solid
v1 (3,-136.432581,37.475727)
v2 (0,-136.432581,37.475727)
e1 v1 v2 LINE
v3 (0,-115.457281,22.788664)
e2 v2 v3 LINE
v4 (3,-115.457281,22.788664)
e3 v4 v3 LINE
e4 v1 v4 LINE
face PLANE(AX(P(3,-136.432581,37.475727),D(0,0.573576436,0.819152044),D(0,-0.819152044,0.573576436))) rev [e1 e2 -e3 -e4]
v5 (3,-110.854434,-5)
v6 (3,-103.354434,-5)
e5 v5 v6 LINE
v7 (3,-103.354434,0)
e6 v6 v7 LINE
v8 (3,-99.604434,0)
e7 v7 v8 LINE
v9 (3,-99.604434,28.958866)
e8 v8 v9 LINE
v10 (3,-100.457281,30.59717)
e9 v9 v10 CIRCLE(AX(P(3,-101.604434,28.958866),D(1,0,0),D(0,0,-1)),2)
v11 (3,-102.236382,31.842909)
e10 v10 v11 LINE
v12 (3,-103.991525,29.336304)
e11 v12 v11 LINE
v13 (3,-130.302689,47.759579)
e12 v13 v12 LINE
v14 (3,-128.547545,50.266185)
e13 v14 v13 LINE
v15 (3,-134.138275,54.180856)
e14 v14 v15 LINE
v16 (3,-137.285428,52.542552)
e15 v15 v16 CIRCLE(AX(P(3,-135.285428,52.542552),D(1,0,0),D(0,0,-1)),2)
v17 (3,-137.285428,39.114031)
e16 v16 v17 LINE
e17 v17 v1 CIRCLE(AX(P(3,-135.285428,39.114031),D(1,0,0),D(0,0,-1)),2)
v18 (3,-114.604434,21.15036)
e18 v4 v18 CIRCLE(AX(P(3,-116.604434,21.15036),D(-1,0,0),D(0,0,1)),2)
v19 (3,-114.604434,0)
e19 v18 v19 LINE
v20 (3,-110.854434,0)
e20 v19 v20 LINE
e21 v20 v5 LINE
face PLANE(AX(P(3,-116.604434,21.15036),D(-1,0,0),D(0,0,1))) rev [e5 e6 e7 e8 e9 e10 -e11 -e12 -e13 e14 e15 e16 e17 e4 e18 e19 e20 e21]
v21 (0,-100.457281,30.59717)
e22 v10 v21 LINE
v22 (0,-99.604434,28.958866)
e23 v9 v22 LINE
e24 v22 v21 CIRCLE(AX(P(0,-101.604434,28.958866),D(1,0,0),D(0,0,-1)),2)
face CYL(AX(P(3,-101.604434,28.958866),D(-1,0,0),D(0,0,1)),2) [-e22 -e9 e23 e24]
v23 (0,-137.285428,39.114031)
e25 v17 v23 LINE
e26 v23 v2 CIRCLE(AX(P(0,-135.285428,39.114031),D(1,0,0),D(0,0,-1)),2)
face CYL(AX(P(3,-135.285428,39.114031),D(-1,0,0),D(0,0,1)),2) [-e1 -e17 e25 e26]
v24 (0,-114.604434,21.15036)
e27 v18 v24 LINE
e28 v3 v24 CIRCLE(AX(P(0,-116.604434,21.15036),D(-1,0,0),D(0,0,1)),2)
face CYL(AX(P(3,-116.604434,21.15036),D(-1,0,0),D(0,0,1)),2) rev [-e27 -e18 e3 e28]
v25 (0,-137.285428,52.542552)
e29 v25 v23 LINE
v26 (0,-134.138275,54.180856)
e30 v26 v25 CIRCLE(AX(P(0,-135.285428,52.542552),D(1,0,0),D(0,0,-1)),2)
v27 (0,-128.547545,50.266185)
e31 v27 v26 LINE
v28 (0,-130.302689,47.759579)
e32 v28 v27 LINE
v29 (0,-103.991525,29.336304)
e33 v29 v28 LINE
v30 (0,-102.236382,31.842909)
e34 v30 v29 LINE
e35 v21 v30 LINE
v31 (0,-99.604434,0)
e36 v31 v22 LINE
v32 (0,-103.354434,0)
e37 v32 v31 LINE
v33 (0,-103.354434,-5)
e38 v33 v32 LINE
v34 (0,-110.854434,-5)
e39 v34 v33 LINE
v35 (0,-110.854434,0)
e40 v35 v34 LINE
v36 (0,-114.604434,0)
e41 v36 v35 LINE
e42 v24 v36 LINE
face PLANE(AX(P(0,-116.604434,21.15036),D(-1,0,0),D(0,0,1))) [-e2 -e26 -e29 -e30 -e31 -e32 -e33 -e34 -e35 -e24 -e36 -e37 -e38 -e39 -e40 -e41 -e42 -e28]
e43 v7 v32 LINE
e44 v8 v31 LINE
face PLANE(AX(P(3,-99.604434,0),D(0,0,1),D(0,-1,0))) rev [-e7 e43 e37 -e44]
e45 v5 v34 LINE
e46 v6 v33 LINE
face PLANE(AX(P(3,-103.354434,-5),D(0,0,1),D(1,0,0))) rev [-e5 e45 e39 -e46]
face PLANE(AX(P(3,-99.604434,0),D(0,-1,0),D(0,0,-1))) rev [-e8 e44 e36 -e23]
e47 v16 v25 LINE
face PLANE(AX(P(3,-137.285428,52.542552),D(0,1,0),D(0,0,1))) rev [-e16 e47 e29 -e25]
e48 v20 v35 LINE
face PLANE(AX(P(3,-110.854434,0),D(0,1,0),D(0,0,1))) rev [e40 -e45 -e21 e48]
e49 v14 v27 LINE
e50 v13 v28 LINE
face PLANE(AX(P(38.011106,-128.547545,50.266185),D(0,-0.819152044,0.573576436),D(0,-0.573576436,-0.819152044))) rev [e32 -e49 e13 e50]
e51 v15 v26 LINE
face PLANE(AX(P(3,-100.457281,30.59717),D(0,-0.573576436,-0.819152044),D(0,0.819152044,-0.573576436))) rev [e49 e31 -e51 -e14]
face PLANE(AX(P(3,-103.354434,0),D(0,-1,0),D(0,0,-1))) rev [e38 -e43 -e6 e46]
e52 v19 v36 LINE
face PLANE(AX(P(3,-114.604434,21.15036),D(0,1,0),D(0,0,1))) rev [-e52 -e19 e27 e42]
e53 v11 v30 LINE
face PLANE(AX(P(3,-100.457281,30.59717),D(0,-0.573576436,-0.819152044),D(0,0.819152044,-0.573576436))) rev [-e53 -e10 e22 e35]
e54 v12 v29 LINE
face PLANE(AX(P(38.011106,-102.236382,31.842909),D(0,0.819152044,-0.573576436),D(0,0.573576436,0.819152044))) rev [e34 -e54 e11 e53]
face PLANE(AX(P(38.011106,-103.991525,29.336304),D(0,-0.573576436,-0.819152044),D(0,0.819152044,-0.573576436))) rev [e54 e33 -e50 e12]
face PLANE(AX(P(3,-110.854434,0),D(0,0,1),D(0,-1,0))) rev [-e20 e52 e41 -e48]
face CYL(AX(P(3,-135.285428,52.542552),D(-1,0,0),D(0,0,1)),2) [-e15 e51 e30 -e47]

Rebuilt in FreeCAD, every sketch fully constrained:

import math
import FreeCAD as App
import Part
import Sketcher
Q = App.Units.Quantity


def add_polygon(sketch, points):
    """Adds a closed chain of lines whose ends are joined by coincident constraints."""
    first, n = sketch.GeometryCount, len(points)
    for a, b in zip(points, points[1:] + points[:1]):
        sketch.addGeometry(Part.LineSegment(App.Vector(*a, 0), App.Vector(*b, 0)), False)
    for i in range(n):
        sketch.addConstraint(Sketcher.Constraint("Coincident", first + i, 2, first + (i + 1) % n, 1))

doc = App.newDocument("Part")
body = doc.addObject("PartDesign::Body", "Body")

# Sketch on YZ plane
sketch1 = body.newObject("Sketcher::SketchObject", "Sketch")
sketch1.AttachmentSupport = (doc.getObject("YZ_Plane"), [""])
sketch1.MapMode = "FlatFace"
sketch1.addGeometry([
    Part.LineSegment(App.Vector(-99.6, 0, 0), App.Vector(-99.6, 29, 0)),  # 0
    Part.ArcOfCircle(Part.Circle(App.Vector(-101.6, 29, 0), App.Vector(0, 0, 1), 2), math.radians(0), math.radians(55)),  # 1
    Part.LineSegment(App.Vector(-100.5, 30.6, 0), App.Vector(-134.1, 54.2, 0)),  # 2
    Part.ArcOfCircle(Part.Circle(App.Vector(-135.3, 52.5, 0), App.Vector(0, 0, 1), 2), math.radians(55), math.radians(180)),  # 3
    Part.LineSegment(App.Vector(-137.3, 52.5, 0), App.Vector(-137.3, 39.1, 0)),  # 4
    Part.ArcOfCircle(Part.Circle(App.Vector(-135.3, 39.1, 0), App.Vector(0, 0, 1), 2), math.radians(-180), math.radians(-125)),  # 5
    Part.LineSegment(App.Vector(-136.4, 37.5, 0), App.Vector(-115.5, 22.8, 0)),  # 6
    Part.ArcOfCircle(Part.Circle(App.Vector(-116.6, 21.2, 0), App.Vector(0, 0, 1), 2), math.radians(0), math.radians(55)),  # 7
    Part.LineSegment(App.Vector(-114.6, 21.2, 0), App.Vector(-114.6, 0, 0)),  # 8
    Part.LineSegment(App.Vector(-114.6, 0, 0), App.Vector(-110.9, 0, 0)),  # 9
    Part.LineSegment(App.Vector(-110.9, 0, 0), App.Vector(-110.9, -5, 0)),  # 10
    Part.LineSegment(App.Vector(-110.9, -5, 0), App.Vector(-103.4, -5, 0)),  # 11
    Part.LineSegment(App.Vector(-103.4, -5, 0), App.Vector(-103.4, 0, 0)),  # 12
    Part.LineSegment(App.Vector(-103.4, 0, 0), App.Vector(-99.6, 0, 0)),  # 13
], False)
sketch1.addConstraint([
    Sketcher.Constraint("Tangent", 0, 2, 1, 1),
    Sketcher.Constraint("Tangent", 1, 2, 2, 1),
    Sketcher.Constraint("Tangent", 2, 2, 3, 1),
    Sketcher.Constraint("Tangent", 3, 2, 4, 1),
    Sketcher.Constraint("Tangent", 4, 2, 5, 1),
    Sketcher.Constraint("Tangent", 5, 2, 6, 1),
    Sketcher.Constraint("Tangent", 6, 2, 7, 2),
    Sketcher.Constraint("Tangent", 7, 1, 8, 1),
    Sketcher.Constraint("Coincident", 8, 2, 9, 1),
    Sketcher.Constraint("Coincident", 9, 2, 10, 1),
    Sketcher.Constraint("Coincident", 10, 2, 11, 1),
    Sketcher.Constraint("Coincident", 11, 2, 12, 1),
    Sketcher.Constraint("Coincident", 12, 2, 13, 1),
    Sketcher.Constraint("Coincident", 13, 2, 0, 1),
    Sketcher.Constraint("Vertical", 0),
    Sketcher.Constraint("Vertical", 4),
    Sketcher.Constraint("Vertical", 8),
    Sketcher.Constraint("Horizontal", 9),
    Sketcher.Constraint("Vertical", 10),
    Sketcher.Constraint("Horizontal", 11),
    Sketcher.Constraint("Vertical", 12),
    Sketcher.Constraint("Horizontal", 13),
    Sketcher.Constraint("Equal", 1, 3),
    Sketcher.Constraint("Equal", 3, 5),
    Sketcher.Constraint("Equal", 5, 7),
    Sketcher.Constraint("PointOnObject", 8, 2, -1),
    Sketcher.Constraint("PointOnObject", 12, 2, -1),
    Sketcher.Constraint("Parallel", 2, 6),
    Sketcher.Constraint("Equal", 9, 13),
    Sketcher.Constraint("Radius", 1, Q("2 mm")),
    Sketcher.Constraint("DistanceY", 10, 2, 10, 1, Q("5 mm")),
    Sketcher.Constraint("Angle", 2, Q("145 deg")),
    Sketcher.Constraint("DistanceX", 11, 1, 11, 2, Q("7.5 mm")),
    Sketcher.Constraint("DistanceX", 7, 3, 1, 3, Q("15 mm")),
    Sketcher.Constraint("Distance", 2, Q("41.116902 mm")),
    Sketcher.Constraint("DistanceY", 4, 2, 4, 1, Q("13.42852 mm")),
    Sketcher.Constraint("DistanceY", 8, 2, 8, 1, Q("21.15036 mm")),
    Sketcher.Constraint("DistanceX", 3, 3, -1, 1, Q("135.285428 mm")),
])
pad1 = body.newObject("PartDesign::Pad", "Pad")
pad1.Profile = sketch1
pad1.Length = 3

# Sketch on YZ plane
sketch2 = body.newObject("Sketcher::SketchObject", "Sketch001")
sketch2.AttachmentSupport = (doc.getObject("YZ_Plane"), [""])
sketch2.MapMode = "FlatFace"
add_polygon(sketch2, [(-130.3, 47.8), (-128.5, 50.3), (-102.2, 31.8), (-104, 29.3)])  # lines 0-3
sketch2.addConstraint([
    Sketcher.Constraint("Perpendicular", 0, 1),
    Sketcher.Constraint("Perpendicular", 1, 2),
    Sketcher.Constraint("Perpendicular", 2, 3),
    Sketcher.Constraint("Angle", 0, Q("55 deg")),
    Sketcher.Constraint("Distance", 0, Q("3.06 mm")),
    Sketcher.Constraint("Distance", 1, Q("32.12 mm")),
    Sketcher.Constraint("DistanceX", 1, 2, -1, 1, Q("102.236382 mm")),
    Sketcher.Constraint("DistanceY", -1, 1, 1, 2, Q("31.842909 mm")),
])
pocket1 = body.newObject("PartDesign::Pocket", "Pocket")
pocket1.Profile = sketch2
pocket1.Length = 3
pocket1.Reversed = True

doc.recompute()
